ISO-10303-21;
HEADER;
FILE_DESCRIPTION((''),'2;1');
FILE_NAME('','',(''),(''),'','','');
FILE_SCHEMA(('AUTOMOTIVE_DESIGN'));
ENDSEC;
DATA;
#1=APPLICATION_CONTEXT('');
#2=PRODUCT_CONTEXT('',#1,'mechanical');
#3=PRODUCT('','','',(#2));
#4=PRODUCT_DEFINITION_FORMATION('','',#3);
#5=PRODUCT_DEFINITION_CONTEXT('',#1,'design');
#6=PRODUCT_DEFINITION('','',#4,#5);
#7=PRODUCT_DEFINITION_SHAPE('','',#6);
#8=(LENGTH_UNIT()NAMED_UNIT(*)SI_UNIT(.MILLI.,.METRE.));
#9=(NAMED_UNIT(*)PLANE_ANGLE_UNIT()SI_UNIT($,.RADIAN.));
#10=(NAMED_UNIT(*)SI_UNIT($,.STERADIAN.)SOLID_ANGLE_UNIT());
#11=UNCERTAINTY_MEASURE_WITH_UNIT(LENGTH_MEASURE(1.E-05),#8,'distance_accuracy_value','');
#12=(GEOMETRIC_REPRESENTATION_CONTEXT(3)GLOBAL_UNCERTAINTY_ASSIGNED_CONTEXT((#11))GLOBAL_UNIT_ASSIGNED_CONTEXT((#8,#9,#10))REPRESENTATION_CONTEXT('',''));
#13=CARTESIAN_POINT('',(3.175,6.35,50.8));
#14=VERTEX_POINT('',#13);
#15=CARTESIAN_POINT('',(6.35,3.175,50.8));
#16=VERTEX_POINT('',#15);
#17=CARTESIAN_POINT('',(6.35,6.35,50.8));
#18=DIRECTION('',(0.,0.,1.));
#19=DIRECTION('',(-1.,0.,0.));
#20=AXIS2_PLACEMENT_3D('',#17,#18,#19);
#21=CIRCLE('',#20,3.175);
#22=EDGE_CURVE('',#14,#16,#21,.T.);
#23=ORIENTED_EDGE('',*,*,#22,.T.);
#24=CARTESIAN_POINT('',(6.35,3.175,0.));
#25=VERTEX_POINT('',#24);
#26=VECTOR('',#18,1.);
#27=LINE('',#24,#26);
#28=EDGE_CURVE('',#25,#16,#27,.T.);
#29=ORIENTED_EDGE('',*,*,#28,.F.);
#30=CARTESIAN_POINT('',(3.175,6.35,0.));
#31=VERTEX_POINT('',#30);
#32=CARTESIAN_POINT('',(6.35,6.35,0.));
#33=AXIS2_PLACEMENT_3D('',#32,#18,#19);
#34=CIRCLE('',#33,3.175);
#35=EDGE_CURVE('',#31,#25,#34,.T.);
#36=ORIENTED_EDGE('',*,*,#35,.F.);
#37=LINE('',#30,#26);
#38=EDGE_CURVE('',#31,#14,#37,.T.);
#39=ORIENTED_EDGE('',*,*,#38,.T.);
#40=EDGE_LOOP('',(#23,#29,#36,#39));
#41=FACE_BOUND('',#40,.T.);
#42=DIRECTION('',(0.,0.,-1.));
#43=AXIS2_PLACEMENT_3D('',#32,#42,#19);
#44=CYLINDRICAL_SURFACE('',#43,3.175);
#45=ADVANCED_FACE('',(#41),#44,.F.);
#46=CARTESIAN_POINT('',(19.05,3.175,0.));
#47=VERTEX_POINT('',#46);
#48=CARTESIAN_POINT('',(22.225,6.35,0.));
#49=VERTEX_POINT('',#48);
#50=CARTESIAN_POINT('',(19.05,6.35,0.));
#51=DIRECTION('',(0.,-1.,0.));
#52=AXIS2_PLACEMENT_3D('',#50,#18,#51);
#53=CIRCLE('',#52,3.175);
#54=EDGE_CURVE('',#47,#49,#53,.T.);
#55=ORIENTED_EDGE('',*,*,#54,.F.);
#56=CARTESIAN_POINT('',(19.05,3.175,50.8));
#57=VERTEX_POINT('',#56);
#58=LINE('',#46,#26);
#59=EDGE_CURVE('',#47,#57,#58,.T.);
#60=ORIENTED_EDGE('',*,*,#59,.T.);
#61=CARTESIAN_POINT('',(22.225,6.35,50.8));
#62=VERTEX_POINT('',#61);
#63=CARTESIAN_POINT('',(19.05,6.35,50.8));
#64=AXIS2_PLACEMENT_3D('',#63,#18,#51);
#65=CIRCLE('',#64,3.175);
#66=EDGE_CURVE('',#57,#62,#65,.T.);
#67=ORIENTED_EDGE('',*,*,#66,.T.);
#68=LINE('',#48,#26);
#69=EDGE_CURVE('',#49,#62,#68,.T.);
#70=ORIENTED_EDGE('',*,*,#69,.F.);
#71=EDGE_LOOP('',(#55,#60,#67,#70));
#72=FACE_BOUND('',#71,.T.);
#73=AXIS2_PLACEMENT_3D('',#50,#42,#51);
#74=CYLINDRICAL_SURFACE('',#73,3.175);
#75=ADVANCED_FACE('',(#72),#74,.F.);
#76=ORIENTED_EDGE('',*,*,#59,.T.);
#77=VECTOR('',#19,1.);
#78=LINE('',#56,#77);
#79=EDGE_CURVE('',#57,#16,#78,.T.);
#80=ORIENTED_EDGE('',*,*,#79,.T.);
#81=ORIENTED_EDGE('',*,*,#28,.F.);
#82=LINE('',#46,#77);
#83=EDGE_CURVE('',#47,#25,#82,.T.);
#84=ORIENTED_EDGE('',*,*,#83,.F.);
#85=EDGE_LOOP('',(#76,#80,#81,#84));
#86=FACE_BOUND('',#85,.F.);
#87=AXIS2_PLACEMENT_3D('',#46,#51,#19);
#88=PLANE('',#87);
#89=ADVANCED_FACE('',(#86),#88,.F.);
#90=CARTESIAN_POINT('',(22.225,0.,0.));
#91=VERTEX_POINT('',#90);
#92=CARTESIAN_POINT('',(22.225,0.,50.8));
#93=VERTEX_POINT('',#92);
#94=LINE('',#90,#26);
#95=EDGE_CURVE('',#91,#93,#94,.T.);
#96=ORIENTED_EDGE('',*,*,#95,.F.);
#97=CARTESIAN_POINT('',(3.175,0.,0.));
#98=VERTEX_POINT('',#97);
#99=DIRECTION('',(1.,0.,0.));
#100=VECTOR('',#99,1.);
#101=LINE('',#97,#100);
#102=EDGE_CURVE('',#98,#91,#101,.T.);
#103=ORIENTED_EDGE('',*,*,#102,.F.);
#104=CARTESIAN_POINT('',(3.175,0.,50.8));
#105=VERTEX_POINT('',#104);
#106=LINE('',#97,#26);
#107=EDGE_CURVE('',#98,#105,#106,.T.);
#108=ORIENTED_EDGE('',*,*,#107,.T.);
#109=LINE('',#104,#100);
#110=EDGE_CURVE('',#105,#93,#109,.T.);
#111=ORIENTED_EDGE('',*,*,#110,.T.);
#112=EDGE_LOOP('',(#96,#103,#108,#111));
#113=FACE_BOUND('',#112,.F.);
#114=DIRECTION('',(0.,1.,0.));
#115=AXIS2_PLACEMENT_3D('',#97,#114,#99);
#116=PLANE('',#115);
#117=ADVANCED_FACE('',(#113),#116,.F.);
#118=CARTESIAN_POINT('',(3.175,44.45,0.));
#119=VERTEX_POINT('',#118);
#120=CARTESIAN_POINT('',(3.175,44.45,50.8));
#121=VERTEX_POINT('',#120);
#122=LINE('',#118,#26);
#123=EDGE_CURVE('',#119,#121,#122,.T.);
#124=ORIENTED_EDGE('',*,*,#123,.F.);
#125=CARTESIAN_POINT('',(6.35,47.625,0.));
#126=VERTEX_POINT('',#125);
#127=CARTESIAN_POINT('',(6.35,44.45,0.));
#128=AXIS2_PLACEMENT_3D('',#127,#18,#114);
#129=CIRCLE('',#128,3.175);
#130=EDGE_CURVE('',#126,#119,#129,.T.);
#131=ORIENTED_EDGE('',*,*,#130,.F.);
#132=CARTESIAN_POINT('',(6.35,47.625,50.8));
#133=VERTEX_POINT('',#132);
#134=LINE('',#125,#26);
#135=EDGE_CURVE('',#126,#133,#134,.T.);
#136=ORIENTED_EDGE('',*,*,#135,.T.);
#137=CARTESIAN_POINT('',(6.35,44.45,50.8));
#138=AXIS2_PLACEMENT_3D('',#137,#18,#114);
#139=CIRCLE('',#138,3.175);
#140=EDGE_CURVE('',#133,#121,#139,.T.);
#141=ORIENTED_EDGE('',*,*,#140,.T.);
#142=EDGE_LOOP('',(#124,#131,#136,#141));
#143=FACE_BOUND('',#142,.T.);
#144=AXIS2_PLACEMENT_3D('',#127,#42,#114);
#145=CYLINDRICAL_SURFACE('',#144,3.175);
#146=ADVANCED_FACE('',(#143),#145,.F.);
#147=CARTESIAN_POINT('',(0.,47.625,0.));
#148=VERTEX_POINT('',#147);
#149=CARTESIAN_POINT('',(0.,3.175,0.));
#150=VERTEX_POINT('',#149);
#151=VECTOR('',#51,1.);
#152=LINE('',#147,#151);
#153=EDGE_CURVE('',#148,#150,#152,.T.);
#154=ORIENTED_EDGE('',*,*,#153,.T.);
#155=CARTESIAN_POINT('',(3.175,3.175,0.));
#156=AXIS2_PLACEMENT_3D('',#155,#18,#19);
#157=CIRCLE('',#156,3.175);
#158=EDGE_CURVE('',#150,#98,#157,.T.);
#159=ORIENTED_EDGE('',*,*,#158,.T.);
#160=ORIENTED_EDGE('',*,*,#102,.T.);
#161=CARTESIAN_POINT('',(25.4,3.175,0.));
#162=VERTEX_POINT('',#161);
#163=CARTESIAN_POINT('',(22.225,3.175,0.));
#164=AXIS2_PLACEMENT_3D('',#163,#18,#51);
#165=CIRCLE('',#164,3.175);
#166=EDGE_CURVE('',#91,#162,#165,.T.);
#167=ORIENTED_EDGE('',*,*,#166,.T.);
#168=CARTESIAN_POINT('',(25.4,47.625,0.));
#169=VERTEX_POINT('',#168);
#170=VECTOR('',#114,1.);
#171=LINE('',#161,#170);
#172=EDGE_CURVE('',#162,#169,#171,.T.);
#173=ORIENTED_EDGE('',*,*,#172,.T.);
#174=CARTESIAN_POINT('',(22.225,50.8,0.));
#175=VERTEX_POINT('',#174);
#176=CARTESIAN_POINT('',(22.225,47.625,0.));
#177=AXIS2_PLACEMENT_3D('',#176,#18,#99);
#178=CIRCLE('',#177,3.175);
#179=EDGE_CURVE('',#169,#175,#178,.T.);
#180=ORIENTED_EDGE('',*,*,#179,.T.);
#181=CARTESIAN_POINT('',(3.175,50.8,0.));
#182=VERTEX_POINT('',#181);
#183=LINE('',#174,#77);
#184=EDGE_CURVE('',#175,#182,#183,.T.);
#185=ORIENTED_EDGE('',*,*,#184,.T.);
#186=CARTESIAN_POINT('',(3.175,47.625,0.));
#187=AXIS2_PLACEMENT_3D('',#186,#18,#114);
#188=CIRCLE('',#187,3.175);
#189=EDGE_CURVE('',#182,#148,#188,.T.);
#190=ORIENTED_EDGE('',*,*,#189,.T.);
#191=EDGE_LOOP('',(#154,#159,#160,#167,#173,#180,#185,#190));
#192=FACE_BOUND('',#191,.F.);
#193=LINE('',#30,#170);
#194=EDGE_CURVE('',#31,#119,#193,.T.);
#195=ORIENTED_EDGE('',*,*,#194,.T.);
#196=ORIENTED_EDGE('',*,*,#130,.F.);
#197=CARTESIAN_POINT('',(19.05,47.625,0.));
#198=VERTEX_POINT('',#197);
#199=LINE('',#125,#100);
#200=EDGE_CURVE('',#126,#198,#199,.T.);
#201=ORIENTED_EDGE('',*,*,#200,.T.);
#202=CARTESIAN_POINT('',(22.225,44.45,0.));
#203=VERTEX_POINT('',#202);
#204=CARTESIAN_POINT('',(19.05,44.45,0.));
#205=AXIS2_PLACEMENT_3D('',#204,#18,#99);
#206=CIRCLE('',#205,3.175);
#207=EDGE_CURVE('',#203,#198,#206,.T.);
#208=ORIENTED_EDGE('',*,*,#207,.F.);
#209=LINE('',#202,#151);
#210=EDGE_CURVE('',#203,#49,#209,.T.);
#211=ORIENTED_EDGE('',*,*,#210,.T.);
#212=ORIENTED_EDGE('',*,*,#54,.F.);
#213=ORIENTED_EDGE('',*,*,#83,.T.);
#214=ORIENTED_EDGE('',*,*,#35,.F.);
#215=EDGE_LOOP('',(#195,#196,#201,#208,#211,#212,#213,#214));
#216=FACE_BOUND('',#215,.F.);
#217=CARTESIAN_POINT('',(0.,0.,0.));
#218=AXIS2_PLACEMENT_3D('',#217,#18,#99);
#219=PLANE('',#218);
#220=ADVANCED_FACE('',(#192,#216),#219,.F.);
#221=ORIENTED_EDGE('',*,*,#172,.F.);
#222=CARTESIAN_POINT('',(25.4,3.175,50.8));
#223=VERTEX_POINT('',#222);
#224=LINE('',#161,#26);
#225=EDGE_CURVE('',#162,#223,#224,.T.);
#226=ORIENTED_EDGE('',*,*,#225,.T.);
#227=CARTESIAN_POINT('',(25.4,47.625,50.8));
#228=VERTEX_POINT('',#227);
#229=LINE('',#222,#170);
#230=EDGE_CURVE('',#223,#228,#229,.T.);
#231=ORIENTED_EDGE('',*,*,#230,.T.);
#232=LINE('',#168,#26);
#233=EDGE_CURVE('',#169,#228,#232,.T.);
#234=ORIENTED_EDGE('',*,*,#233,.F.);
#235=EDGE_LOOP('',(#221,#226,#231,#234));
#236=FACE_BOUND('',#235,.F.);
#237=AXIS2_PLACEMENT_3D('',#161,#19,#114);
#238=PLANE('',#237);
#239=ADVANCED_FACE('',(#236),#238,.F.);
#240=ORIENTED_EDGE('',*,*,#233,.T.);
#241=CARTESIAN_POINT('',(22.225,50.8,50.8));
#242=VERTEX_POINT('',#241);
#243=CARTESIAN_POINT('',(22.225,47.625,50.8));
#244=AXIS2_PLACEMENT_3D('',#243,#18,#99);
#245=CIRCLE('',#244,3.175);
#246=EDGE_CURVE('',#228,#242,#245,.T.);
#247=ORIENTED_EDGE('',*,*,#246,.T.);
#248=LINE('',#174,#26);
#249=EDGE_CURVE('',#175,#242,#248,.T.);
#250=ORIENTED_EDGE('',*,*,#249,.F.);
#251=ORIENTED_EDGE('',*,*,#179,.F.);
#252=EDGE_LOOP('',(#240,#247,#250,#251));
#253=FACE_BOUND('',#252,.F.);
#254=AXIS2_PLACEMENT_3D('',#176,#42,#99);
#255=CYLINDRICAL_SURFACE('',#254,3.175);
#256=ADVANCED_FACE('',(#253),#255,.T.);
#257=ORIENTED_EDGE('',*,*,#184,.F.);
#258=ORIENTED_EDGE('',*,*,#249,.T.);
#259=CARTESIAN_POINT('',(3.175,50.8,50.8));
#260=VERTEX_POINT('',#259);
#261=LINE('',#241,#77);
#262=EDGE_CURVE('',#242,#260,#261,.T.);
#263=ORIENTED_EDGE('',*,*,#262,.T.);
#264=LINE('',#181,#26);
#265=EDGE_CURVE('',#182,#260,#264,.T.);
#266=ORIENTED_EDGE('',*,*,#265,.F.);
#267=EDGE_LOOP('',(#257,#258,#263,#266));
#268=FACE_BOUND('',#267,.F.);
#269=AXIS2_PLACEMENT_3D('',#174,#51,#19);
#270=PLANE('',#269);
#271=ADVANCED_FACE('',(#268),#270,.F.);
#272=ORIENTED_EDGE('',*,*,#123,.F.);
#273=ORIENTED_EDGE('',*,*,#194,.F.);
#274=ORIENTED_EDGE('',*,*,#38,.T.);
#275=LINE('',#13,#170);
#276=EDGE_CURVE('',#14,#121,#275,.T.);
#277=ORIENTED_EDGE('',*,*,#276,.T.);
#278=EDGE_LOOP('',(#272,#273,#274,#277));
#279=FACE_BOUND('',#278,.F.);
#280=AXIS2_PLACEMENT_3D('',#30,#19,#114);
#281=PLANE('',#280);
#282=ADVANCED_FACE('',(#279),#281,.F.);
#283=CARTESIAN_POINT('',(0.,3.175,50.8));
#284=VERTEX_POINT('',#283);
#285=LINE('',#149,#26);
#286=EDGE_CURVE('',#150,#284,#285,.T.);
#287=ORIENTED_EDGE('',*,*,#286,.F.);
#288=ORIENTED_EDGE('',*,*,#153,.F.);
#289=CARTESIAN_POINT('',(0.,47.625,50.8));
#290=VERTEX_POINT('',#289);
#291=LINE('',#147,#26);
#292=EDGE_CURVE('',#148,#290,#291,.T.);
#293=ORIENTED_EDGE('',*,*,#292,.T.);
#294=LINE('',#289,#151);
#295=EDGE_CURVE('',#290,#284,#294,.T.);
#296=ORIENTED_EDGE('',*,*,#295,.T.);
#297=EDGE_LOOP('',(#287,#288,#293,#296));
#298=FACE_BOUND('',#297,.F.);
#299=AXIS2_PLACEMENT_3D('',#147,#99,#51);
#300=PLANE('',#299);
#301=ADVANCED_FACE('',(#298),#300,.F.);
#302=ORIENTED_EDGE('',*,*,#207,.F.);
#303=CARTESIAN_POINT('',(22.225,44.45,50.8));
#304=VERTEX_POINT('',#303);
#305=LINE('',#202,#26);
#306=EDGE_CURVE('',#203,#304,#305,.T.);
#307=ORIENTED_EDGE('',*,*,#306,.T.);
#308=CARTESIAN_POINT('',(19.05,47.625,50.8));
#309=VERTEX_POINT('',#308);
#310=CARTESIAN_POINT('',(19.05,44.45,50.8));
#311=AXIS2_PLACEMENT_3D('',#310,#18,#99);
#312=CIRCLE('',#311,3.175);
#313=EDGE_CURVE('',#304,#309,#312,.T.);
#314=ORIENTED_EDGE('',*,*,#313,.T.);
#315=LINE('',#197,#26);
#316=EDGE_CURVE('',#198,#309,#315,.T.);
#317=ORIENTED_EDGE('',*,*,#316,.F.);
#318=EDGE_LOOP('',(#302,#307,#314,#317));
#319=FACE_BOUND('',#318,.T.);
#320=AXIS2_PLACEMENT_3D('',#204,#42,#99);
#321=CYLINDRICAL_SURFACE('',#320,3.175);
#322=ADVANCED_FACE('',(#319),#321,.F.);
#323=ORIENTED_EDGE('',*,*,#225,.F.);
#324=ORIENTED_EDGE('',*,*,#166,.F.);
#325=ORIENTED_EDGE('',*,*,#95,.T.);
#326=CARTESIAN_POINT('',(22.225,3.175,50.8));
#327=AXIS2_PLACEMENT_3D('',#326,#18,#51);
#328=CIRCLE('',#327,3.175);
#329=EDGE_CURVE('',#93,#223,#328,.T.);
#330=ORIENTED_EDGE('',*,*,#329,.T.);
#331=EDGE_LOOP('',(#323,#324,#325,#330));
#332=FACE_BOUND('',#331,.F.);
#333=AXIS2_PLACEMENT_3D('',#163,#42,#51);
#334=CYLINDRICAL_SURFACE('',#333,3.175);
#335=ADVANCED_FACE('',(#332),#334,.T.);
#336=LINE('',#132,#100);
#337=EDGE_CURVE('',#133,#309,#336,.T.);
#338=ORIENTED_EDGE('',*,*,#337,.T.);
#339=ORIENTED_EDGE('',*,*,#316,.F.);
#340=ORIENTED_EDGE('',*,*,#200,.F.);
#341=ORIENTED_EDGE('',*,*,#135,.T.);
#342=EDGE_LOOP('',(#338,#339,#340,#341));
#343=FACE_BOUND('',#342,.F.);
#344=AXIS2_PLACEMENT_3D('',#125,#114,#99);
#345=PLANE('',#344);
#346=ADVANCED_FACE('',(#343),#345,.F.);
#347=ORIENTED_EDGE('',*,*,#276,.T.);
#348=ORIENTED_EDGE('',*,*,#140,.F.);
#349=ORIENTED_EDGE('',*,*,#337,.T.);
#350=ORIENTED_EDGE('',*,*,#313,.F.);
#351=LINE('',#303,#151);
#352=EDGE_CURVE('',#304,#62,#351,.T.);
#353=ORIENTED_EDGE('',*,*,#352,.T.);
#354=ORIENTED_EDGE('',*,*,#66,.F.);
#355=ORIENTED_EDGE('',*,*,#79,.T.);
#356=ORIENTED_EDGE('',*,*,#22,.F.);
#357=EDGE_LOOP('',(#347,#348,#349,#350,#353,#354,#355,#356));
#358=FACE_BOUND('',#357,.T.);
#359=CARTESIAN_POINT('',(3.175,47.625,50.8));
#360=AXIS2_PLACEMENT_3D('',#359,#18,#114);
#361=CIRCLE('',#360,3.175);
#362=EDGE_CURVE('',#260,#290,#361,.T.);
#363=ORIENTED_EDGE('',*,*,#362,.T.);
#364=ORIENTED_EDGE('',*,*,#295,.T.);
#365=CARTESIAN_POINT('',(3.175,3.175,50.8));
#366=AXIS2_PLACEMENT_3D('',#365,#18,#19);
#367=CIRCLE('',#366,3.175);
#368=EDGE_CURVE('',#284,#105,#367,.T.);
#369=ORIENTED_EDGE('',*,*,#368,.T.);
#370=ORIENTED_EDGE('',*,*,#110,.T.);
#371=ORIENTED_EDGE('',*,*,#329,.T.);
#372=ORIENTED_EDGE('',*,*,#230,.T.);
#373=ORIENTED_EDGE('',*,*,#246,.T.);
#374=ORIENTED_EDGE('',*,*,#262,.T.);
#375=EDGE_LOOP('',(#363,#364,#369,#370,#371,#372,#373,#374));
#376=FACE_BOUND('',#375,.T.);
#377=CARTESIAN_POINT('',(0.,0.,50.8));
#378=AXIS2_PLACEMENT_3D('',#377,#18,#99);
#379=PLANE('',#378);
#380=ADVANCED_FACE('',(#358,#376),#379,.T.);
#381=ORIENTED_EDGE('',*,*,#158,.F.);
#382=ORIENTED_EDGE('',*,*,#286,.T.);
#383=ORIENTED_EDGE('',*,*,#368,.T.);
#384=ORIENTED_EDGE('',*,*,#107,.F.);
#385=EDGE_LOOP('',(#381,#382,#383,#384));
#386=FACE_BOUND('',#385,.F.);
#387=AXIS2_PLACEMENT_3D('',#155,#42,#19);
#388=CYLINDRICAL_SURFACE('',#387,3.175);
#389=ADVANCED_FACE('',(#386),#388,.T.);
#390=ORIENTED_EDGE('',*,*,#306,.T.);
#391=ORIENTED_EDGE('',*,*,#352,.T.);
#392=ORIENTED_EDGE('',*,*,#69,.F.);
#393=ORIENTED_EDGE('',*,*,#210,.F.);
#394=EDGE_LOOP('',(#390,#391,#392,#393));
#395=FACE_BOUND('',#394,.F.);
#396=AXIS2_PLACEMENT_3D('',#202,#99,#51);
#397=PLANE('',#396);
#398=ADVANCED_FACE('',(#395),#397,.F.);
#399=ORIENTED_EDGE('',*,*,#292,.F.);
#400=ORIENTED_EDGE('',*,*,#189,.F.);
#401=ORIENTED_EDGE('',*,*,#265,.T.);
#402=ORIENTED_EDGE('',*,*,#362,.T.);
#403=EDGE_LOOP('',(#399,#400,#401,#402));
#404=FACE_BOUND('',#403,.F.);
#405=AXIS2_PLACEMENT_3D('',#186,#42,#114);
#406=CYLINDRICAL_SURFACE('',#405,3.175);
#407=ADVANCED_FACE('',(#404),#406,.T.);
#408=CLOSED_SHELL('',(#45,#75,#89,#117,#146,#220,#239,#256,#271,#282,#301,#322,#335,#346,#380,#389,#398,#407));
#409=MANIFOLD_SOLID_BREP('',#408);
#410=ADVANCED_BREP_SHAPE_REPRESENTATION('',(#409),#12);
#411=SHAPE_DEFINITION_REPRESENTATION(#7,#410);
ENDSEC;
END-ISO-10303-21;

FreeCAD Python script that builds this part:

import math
import FreeCAD as App
import Part
import Sketcher

V = App.Vector
Q = App.Units.Quantity

doc = App.newDocument("Part")
body = doc.addObject("PartDesign::Body", "Body")

sketch1 = doc.addObject("Sketcher::SketchObject", "Sketch")
body.addObject(sketch1)
sketch1.AttachmentSupport = (doc.XY_Plane, [""])
sketch1.MapMode = "FlatFace"
sketch1.addGeometry([
    Part.ArcOfCircle(Part.Circle(V(3.2, 3.2, 0), V(0, 0, 1), 3.2), math.radians(180), math.radians(270)),
    Part.LineSegment(V(3.2, 0, 0), V(22.2, 0, 0)),
    Part.ArcOfCircle(Part.Circle(V(22.2, 3.2, 0), V(0, 0, 1), 3.2), math.radians(-90), math.radians(0)),
    Part.LineSegment(V(25.4, 3.2, 0), V(25.4, 47.6, 0)),
    Part.ArcOfCircle(Part.Circle(V(22.2, 47.6, 0), V(0, 0, 1), 3.2), math.radians(0), math.radians(90)),
    Part.LineSegment(V(22.2, 50.8, 0), V(3.2, 50.8, 0)),
    Part.ArcOfCircle(Part.Circle(V(3.2, 47.6, 0), V(0, 0, 1), 3.2), math.radians(90), math.radians(180)),
    Part.LineSegment(V(0, 47.6, 0), V(0, 3.2, 0)),
    Part.ArcOfCircle(Part.Circle(V(6.3, 44.5, 0), V(0, 0, 1), 3.2), math.radians(90), math.radians(180)),
    Part.LineSegment(V(6.3, 47.6, 0), V(19.1, 47.6, 0)),
    Part.ArcOfCircle(Part.Circle(V(19.1, 44.5, 0), V(0, 0, 1), 3.2), math.radians(0), math.radians(90)),
    Part.LineSegment(V(22.2, 44.5, 0), V(22.2, 6.3, 0)),
    Part.ArcOfCircle(Part.Circle(V(19.1, 6.3, 0), V(0, 0, 1), 3.2), math.radians(-90), math.radians(0)),
    Part.LineSegment(V(19.1, 3.2, 0), V(6.3, 3.2, 0)),
    Part.ArcOfCircle(Part.Circle(V(6.3, 6.3, 0), V(0, 0, 1), 3.2), math.radians(180), math.radians(270)),
    Part.LineSegment(V(3.2, 6.3, 0), V(3.2, 44.5, 0)),
], False)
sketch1.addConstraint([
    Sketcher.Constraint("Tangent", 0, 2, 1, 1),
    Sketcher.Constraint("Tangent", 1, 2, 2, 1),
    Sketcher.Constraint("Tangent", 2, 2, 3, 1),
    Sketcher.Constraint("Tangent", 3, 2, 4, 1),
    Sketcher.Constraint("Tangent", 4, 2, 5, 1),
    Sketcher.Constraint("Tangent", 5, 2, 6, 1),
    Sketcher.Constraint("Tangent", 6, 2, 7, 1),
    Sketcher.Constraint("Tangent", 7, 2, 0, 1),
    Sketcher.Constraint("Tangent", 8, 1, 9, 1),
    Sketcher.Constraint("Tangent", 9, 2, 10, 2),
    Sketcher.Constraint("Tangent", 10, 1, 11, 1),
    Sketcher.Constraint("Tangent", 11, 2, 12, 2),
    Sketcher.Constraint("Tangent", 12, 1, 13, 1),
    Sketcher.Constraint("Tangent", 13, 2, 14, 2),
    Sketcher.Constraint("Tangent", 14, 1, 15, 1),
    Sketcher.Constraint("Tangent", 15, 2, 8, 2),
    Sketcher.Constraint("Horizontal", 1),
    Sketcher.Constraint("Vertical", 3),
    Sketcher.Constraint("Horizontal", 5),
    Sketcher.Constraint("Vertical", 7),
    Sketcher.Constraint("Horizontal", 9),
    Sketcher.Constraint("Vertical", 11),
    Sketcher.Constraint("Horizontal", 13),
    Sketcher.Constraint("Vertical", 15),
    Sketcher.Constraint("Equal", 0, 2),
    Sketcher.Constraint("Equal", 2, 4),
    Sketcher.Constraint("Equal", 4, 6),
    Sketcher.Constraint("Equal", 6, 8),
    Sketcher.Constraint("Equal", 8, 10),
    Sketcher.Constraint("Equal", 10, 12),
    Sketcher.Constraint("Equal", 12, 14),
    Sketcher.Constraint("PointOnObject", 0, 2, -1),
    Sketcher.Constraint("PointOnObject", 6, 2, -2),
    Sketcher.Constraint("Horizontal", 6, 2, 8, 1),
    Sketcher.Constraint("Horizontal", 7, 2, 12, 1),
    Sketcher.Constraint("Vertical", 4, 2, 10, 1),
    Sketcher.Constraint("Vertical", 5, 2, 14, 1),
    Sketcher.Constraint("DistanceX", -1, 1, 2, 2, Q("1 in")),
    Sketcher.Constraint("DistanceY", -1, 1, 4, 2, Q("2 in")),
    Sketcher.Constraint("Radius", 0, Q("0.125 in")),
])
pad1 = doc.addObject("PartDesign::Pad", "Pad")
body.addObject(pad1)
pad1.Profile = sketch1
pad1.Length = Q("2 in")

doc.recompute()
